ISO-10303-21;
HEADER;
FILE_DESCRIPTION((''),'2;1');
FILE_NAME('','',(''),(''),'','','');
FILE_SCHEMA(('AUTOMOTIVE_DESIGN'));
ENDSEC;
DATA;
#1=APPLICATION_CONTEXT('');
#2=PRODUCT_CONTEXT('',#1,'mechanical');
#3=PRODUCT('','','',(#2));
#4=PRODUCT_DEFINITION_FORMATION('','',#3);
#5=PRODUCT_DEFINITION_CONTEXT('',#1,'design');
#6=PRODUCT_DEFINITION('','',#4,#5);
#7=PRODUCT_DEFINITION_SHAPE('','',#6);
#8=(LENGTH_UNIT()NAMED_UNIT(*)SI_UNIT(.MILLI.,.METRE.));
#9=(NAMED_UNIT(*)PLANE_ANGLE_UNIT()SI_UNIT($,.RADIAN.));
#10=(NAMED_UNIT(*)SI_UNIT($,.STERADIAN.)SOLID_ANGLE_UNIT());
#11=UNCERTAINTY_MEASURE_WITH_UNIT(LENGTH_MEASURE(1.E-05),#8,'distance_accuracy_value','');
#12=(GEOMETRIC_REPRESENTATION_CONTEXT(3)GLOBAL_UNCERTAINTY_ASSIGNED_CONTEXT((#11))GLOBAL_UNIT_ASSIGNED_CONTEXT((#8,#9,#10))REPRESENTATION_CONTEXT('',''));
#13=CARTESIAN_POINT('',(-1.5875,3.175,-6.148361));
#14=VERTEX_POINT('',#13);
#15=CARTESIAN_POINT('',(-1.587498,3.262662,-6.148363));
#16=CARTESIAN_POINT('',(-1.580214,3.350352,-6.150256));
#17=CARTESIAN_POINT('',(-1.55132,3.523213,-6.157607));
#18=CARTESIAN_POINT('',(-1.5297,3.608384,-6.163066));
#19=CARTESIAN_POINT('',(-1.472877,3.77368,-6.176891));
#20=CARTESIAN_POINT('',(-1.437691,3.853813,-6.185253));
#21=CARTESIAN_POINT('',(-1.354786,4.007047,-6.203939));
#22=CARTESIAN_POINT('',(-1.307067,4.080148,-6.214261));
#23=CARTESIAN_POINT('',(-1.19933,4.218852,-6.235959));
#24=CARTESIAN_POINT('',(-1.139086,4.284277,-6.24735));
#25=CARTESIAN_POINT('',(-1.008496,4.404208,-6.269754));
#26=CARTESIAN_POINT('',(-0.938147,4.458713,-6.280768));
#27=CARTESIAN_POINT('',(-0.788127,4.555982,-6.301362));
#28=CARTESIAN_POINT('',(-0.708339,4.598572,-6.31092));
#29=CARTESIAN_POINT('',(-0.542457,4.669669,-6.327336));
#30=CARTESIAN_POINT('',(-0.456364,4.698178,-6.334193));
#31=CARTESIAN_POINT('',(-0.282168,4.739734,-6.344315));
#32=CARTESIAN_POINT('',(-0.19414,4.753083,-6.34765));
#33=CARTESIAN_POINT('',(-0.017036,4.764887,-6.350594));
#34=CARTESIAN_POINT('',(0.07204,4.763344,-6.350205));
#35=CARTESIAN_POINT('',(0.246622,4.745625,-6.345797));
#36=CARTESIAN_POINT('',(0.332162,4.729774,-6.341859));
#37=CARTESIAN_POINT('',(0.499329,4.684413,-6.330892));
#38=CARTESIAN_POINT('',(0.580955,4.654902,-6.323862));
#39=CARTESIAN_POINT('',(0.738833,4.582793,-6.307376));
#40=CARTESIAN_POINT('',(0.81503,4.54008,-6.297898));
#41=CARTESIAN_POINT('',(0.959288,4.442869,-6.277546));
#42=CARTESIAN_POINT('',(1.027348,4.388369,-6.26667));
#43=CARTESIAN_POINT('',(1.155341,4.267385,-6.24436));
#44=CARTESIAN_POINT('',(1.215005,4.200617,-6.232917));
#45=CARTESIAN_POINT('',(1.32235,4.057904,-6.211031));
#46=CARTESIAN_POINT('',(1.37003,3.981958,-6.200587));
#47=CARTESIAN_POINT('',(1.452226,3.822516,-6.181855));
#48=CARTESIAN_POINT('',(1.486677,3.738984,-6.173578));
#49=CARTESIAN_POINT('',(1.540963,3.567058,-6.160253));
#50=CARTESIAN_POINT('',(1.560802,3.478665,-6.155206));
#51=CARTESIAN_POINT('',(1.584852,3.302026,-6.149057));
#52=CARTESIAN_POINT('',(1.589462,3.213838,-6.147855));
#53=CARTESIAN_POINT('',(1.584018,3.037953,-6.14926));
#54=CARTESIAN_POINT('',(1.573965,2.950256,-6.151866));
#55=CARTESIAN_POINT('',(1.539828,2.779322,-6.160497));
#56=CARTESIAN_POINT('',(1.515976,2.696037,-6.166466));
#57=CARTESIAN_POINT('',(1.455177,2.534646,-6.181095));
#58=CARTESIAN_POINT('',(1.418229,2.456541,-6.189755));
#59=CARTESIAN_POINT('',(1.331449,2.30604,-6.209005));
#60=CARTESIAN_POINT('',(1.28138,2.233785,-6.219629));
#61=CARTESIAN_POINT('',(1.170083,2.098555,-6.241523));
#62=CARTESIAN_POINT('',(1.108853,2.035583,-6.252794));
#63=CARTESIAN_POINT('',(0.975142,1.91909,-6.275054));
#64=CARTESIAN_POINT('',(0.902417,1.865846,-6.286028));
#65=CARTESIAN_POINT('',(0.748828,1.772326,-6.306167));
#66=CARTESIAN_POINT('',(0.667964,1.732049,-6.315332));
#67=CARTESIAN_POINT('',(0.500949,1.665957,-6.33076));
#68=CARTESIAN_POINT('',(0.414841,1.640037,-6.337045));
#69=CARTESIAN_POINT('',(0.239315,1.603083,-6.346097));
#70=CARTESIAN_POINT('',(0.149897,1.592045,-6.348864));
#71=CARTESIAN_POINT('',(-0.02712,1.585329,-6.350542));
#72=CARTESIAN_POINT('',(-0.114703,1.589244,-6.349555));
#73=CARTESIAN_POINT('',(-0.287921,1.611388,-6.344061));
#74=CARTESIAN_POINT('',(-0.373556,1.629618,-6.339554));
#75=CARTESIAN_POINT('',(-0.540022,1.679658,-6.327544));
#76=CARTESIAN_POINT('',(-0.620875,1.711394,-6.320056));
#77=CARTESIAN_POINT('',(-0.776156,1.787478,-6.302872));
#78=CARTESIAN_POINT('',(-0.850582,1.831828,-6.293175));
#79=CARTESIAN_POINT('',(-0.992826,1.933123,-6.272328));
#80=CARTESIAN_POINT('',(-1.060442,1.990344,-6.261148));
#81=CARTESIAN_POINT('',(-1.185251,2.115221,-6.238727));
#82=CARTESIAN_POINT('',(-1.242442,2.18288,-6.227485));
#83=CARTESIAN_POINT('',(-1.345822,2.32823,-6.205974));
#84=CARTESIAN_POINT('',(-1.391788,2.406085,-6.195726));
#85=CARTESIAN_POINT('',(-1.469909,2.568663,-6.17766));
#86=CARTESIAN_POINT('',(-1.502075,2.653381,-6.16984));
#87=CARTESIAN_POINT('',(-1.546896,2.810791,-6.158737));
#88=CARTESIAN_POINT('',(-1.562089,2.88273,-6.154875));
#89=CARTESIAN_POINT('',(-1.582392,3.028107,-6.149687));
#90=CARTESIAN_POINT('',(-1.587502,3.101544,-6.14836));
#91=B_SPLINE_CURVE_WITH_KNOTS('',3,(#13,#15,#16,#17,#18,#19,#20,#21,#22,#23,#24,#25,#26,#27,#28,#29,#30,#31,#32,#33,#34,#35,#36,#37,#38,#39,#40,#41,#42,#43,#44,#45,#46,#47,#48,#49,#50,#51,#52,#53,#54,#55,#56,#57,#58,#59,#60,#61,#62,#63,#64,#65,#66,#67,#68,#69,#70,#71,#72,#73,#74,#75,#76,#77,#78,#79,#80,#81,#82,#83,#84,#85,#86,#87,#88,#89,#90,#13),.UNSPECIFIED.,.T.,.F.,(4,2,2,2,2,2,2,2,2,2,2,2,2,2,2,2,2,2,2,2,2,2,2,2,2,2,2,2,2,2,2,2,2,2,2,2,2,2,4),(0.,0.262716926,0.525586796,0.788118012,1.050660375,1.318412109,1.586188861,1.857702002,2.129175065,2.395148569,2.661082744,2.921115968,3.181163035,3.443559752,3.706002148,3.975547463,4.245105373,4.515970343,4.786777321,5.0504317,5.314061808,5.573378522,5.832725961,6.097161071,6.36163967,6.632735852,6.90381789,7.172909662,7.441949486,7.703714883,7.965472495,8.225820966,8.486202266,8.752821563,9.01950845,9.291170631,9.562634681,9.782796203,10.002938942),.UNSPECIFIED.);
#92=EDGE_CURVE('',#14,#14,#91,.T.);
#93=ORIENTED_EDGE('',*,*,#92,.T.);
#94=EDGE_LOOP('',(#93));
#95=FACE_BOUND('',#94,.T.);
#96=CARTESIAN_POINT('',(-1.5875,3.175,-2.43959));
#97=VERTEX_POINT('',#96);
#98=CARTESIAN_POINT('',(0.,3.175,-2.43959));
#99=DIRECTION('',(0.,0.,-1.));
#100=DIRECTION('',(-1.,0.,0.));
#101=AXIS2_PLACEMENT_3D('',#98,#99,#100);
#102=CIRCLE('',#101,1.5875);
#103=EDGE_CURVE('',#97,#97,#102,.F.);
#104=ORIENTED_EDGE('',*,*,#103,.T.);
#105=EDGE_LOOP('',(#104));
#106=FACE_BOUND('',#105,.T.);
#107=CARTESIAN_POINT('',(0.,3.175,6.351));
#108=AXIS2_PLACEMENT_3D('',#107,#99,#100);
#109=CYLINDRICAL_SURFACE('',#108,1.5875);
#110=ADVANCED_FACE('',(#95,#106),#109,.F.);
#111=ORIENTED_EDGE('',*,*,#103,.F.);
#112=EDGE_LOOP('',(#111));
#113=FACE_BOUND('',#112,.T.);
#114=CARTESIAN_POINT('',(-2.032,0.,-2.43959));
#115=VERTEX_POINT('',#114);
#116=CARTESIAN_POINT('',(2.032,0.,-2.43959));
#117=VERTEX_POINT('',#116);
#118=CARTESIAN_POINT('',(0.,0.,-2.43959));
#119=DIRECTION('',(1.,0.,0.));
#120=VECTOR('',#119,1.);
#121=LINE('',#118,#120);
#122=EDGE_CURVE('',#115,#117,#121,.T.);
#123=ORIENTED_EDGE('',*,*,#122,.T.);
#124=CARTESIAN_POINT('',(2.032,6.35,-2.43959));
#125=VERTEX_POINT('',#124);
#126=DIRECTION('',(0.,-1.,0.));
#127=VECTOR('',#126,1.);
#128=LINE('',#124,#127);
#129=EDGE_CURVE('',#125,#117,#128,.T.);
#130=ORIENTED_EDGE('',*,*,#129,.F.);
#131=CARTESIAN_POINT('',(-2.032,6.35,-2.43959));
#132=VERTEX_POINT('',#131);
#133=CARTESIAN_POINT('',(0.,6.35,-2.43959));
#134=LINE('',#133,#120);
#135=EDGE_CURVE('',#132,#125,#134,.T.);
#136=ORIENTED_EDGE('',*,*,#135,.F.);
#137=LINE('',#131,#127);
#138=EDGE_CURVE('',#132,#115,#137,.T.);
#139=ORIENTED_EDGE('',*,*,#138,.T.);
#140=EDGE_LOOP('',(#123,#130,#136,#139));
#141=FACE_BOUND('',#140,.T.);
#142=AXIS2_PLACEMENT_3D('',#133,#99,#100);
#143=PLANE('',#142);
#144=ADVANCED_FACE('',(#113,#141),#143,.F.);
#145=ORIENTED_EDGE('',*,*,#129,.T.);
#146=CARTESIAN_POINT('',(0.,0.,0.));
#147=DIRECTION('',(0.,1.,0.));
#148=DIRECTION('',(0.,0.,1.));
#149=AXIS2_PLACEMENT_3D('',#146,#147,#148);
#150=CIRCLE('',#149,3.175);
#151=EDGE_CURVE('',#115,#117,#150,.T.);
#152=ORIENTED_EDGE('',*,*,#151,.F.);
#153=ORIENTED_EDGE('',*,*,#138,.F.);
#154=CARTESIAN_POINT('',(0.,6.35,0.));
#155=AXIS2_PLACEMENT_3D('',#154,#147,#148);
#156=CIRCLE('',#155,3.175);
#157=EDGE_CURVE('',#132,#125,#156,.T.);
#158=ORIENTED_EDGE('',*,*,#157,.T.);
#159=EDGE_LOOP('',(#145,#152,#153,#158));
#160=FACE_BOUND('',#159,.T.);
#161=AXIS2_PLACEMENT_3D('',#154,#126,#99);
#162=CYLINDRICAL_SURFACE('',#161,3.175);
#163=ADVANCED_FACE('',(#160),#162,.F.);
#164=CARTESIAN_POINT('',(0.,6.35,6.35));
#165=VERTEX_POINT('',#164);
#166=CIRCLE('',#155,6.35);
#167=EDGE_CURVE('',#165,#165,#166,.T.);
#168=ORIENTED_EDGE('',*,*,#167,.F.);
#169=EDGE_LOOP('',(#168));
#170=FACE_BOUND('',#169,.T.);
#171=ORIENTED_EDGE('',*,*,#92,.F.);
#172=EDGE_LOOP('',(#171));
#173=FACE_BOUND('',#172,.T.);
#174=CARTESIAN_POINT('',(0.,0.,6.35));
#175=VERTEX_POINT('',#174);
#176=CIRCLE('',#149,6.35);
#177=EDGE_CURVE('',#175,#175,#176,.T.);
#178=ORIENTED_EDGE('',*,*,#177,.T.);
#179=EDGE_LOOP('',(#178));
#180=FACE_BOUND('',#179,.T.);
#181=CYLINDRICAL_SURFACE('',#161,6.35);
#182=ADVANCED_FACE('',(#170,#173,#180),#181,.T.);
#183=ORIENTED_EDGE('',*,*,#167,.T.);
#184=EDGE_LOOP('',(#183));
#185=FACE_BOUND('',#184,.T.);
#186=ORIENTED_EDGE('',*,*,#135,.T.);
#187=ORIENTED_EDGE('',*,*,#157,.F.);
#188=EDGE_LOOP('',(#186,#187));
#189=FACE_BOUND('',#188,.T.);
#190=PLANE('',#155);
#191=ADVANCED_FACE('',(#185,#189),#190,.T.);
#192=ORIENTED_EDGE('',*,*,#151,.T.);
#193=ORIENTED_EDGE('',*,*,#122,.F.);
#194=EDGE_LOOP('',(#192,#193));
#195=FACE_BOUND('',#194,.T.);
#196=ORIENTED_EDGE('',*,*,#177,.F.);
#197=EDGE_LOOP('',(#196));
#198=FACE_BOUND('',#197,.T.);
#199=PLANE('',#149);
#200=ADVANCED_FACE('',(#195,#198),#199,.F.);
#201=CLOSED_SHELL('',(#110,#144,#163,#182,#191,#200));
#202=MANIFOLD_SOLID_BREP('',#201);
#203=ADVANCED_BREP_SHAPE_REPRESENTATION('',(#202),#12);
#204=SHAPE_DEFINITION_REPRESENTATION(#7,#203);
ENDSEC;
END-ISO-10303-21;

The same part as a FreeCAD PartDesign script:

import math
import FreeCAD as App
import Part
import Sketcher

V = App.Vector
Q = App.Units.Quantity

doc = App.newDocument("Part")
params = doc.addObject("Spreadsheet::Sheet", "Params")
for row, (alias, value) in enumerate([
    ("sketch1_diameter", "0.5 in"),
    ("sketch1_radius", "0.125 in"),
    ("sketch1_width", "0.16 in"),
    ("pad1_length", "0.25 in"),
    ("sketch2_diameter", "0.125 in"),
], start=1):
    params.set(f"A{row}", alias)
    params.set(f"B{row}", "=" + value)
    params.setAlias(f"B{row}", alias)

body = doc.addObject("PartDesign::Body", "Body")

sketch1 = body.newObject("Sketcher::SketchObject", "Sketch")
sketch1.AttachmentSupport = (doc.getObject("XZ_Plane"), [""])
sketch1.MapMode = "FlatFace"
sketch1.addGeometry([
    Part.Circle(V(0, 0, 0), V(0, 0, 1), 6.3),
    Part.ArcOfCircle(Part.Circle(V(0, 0, 0), V(0, 0, 1), 3.2), math.radians(-50), math.radians(230)),
    Part.LineSegment(V(-2, -2.4, 0), V(2, -2.4, 0)),
], False)
sketch1.addConstraint([
    Sketcher.Constraint("Coincident", 1, 1, 2, 2),
    Sketcher.Constraint("Coincident", 2, 1, 1, 2),
    Sketcher.Constraint("Horizontal", 2),
    Sketcher.Constraint("Coincident", 0, 3, -1, 1),
    Sketcher.Constraint("Coincident", 1, 3, -1, 1),
    Sketcher.Constraint("Diameter", 0, Q("0.5 in")),
    Sketcher.Constraint("Radius", 1, Q("0.125 in")),
    Sketcher.Constraint("DistanceX", 2, 1, 2, 2, Q("0.16 in")),
])
sketch1.setExpression("Constraints[5]", "Params.sketch1_diameter")
sketch1.setExpression("Constraints[6]", "Params.sketch1_radius")
sketch1.setExpression("Constraints[7]", "Params.sketch1_width")
pad1 = body.newObject("PartDesign::Pad", "Pad")
pad1.Profile = sketch1
pad1.setExpression("Length", "Params.pad1_length")
pad1.Reversed = True

sketch2 = body.newObject("Sketcher::SketchObject", "Sketch001")
sketch2.AttachmentSupport = (doc.getObject("XY_Plane"), [""])
sketch2.MapMode = "FlatFace"
sketch2.AttachmentOffset = App.Placement(V(0, 0, -0.25 * 25.4), App.Rotation())
sketch2.addGeometry(Part.Circle(V(0, 3.2, 0), V(0, 0, 1), 1.6), False)
sketch2.addConstraint([
    Sketcher.Constraint("PointOnObject", 0, 3, -2),
    Sketcher.Constraint("Diameter", 0, Q("0.125 in")),
    Sketcher.Constraint("DistanceY", -1, 1, 0, 3, Q("0.125 in")),
])
sketch2.setExpression("Constraints[1]", "Params.sketch2_diameter")
pocket1 = body.newObject("PartDesign::Pocket", "Pocket")
pocket1.Profile = sketch2
pocket1.Type = "UpToFirst"
pocket1.Reversed = True

doc.recompute()
